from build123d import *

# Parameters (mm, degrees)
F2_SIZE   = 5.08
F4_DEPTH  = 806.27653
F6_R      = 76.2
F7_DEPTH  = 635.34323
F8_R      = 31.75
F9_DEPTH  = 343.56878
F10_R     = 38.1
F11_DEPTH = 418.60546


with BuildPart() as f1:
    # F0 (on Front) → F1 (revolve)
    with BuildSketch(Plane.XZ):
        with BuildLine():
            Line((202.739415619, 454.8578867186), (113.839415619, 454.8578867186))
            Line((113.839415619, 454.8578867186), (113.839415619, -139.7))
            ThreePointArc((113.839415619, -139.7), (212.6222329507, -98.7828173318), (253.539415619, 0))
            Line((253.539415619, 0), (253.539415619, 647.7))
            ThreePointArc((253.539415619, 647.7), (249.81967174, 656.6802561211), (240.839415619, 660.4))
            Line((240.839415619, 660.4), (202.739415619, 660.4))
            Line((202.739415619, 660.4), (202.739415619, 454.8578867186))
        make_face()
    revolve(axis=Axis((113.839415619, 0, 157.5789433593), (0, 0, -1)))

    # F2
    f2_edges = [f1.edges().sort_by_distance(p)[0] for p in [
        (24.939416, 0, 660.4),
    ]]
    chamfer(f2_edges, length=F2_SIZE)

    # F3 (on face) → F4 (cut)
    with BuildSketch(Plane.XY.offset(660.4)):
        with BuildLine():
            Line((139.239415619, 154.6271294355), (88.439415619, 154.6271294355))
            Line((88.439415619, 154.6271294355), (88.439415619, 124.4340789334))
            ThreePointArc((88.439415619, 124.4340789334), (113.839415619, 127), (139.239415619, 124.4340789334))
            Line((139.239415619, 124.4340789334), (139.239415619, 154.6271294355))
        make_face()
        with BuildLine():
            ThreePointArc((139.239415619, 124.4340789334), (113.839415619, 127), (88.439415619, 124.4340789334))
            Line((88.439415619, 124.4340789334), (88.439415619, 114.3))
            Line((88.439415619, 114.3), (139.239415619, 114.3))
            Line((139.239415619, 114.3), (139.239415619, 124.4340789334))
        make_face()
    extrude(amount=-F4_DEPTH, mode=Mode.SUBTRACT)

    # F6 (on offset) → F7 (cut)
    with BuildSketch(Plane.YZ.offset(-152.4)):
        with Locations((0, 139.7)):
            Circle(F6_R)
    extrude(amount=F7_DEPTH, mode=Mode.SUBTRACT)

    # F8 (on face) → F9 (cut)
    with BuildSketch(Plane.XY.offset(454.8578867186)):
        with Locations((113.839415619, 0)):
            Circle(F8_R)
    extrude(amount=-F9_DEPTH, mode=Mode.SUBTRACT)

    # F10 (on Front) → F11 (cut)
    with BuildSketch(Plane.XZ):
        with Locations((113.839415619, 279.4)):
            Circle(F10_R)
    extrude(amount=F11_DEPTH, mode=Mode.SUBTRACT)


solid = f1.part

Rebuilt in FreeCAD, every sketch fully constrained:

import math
import FreeCAD as App
import Part
import Sketcher

V = App.Vector
Q = App.Units.Quantity


def edges_at(feature, points):
    """Names of the edges that pass closest to the given points."""
    edges = feature.Shape.Edges
    near = lambda p: min(range(len(edges)), key=lambda i: edges[i].distToShape(Part.Vertex(*p))[0])
    return sorted({f"Edge{near(p) + 1}" for p in points})

doc = App.newDocument("Part")
params = doc.addObject("Spreadsheet::Sheet", "Params")
for row, (alias, value) in enumerate([
    ("sketch1_radius", "5.5 in"),
    ("sketch1_radius2", "0.5 in"),
    ("sketch1_width", "3.5 in"),
    ("sketch1_height", "25.5 in"),
    ("revolution_angle", "360 deg"),
    ("chamfer_size", "0.2 in"),
    ("sketch2_width", "2 in"),
    ("pocket1_length", "806.27653 mm"),
    ("sketch3_diameter", "6 in"),
    ("pocket2_length", "635.34323 mm"),
    ("sketch4_diameter", "2.5 in"),
    ("pocket3_length", "343.56878 mm"),
    ("sketch5_diameter", "3 in"),
    ("pocket4_length", "418.60546 mm"),
], start=1):
    params.set(f"A{row}", alias)
    params.set(f"B{row}", "=" + value)
    params.setAlias(f"B{row}", alias)

body = doc.addObject("PartDesign::Body", "Body")

# Sketch on XZ plane
sketch1 = body.newObject("Sketcher::SketchObject", "Sketch")
sketch1.AttachmentSupport = (doc.getObject("XZ_Plane"), [""])
sketch1.MapMode = "FlatFace"
sketch1.addGeometry([
    Part.LineSegment(V(203, 455, 0), V(114, 455, 0)),  # 0
    Part.LineSegment(V(114, 455, 0), V(114, -140, 0)),  # 1
    Part.ArcOfCircle(Part.Circle(V(114, 0, 0), V(0, 0, 1), 140), math.radians(-90), math.radians(0)),  # 2
    Part.LineSegment(V(254, 0, 0), V(254, 648, 0)),  # 3
    Part.ArcOfCircle(Part.Circle(V(241, 648, 0), V(0, 0, 1), 13), math.radians(0), math.radians(90)),  # 4
    Part.LineSegment(V(241, 660, 0), V(203, 660, 0)),  # 5
    Part.LineSegment(V(203, 660, 0), V(203, 455, 0)),  # 6
], False)
sketch1.addGeometry(Part.LineSegment(V(114, 660, 0), V(114, -140, 0)), True)  # axis
sketch1.addConstraint([
    Sketcher.Constraint("Coincident", 0, 2, 1, 1),
    Sketcher.Constraint("Coincident", 1, 2, 2, 1),
    Sketcher.Constraint("Tangent", 2, 2, 3, 1),
    Sketcher.Constraint("Tangent", 3, 2, 4, 1),
    Sketcher.Constraint("Tangent", 4, 2, 5, 1),
    Sketcher.Constraint("Coincident", 5, 2, 6, 1),
    Sketcher.Constraint("Coincident", 6, 2, 0, 1),
    Sketcher.Constraint("Horizontal", 0),
    Sketcher.Constraint("Vertical", 1),
    Sketcher.Constraint("Vertical", 3),
    Sketcher.Constraint("Horizontal", 5),
    Sketcher.Constraint("Vertical", 6),
    Sketcher.Constraint("Vertical", 7),
    Sketcher.Constraint("Coincident", 7, 2, 1, 2),
    Sketcher.Constraint("PointOnObject", 2, 3, -1),
    Sketcher.Constraint("Horizontal", 5, 2, 7, 1),
    Sketcher.Constraint("Vertical", 2, 3, 0, 2),
    Sketcher.Constraint("Radius", 2, Q("5.5 in")),
    Sketcher.Constraint("Radius", 4, Q("0.5 in")),
    Sketcher.Constraint("DistanceX", 0, 2, 0, 1, Q("3.5 in")),
    Sketcher.Constraint("DistanceY", 3, 1, 3, 2, Q("25.5 in")),
    Sketcher.Constraint("DistanceY", 1, 2, 1, 1, 594.557887),
    Sketcher.Constraint("DistanceX", -1, 1, 2, 3, 113.839416),
])
sketch1.setExpression("Constraints[17]", "Params.sketch1_radius")
sketch1.setExpression("Constraints[18]", "Params.sketch1_radius2")
sketch1.setExpression("Constraints[19]", "Params.sketch1_width")
sketch1.setExpression("Constraints[20]", "Params.sketch1_height")
revolution = body.newObject("PartDesign::Revolution", "Revolution")
revolution.Profile = sketch1
revolution.ReferenceAxis = (sketch1, ["Axis0"])
revolution.setExpression("Angle", "Params.revolution_angle")
doc.recompute()

chamfer = body.newObject("PartDesign::Chamfer", "Chamfer")
chamfer.Base = (revolution, edges_at(revolution, [(24.939, 0, 660.4)]))
chamfer.setExpression("Size", "Params.chamfer_size")

# Sketch on XY plane
sketch2 = body.newObject("Sketcher::SketchObject", "Sketch001")
sketch2.AttachmentSupport = (doc.getObject("XY_Plane"), [""])
sketch2.MapMode = "FlatFace"
sketch2.AttachmentOffset = App.Placement(V(0, 0, 26 * 25.4), App.Rotation())
sketch2.addGeometry([
    Part.LineSegment(V(139, 155, 0), V(88, 155, 0)),
    Part.LineSegment(V(88, 155, 0), V(88, 114, 0)),
    Part.LineSegment(V(88, 114, 0), V(139, 114, 0)),
    Part.LineSegment(V(139, 114, 0), V(139, 155, 0)),
], False)
sketch2.addConstraint([
    Sketcher.Constraint("Coincident", 0, 2, 1, 1),
    Sketcher.Constraint("Coincident", 1, 2, 2, 1),
    Sketcher.Constraint("Coincident", 2, 2, 3, 1),
    Sketcher.Constraint("Coincident", 3, 2, 0, 1),
    Sketcher.Constraint("Horizontal", 0),
    Sketcher.Constraint("Vertical", 1),
    Sketcher.Constraint("Horizontal", 2),
    Sketcher.Constraint("Vertical", 3),
    Sketcher.Constraint("DistanceX", 0, 2, 0, 1, Q("2 in")),
    Sketcher.Constraint("DistanceY", -1, 1, 1, 2, Q("4.5 in")),
    Sketcher.Constraint("DistanceY", 1, 2, 1, 1, 40.327129),
    Sketcher.Constraint("DistanceX", -1, 1, 0, 2, 88.439416),
])
sketch2.setExpression("Constraints[8]", "Params.sketch2_width")
pocket1 = body.newObject("PartDesign::Pocket", "Pocket")
pocket1.Profile = sketch2
pocket1.setExpression("Length", "Params.pocket1_length")

# Sketch on YZ plane
sketch3 = body.newObject("Sketcher::SketchObject", "Sketch002")
sketch3.AttachmentSupport = (doc.getObject("YZ_Plane"), [""])
sketch3.MapMode = "FlatFace"
sketch3.AttachmentOffset = App.Placement(V(0, 0, -6 * 25.4), App.Rotation())
sketch3.addGeometry(Part.Circle(V(0, 140, 0), V(0, 0, 1), 76), False)
sketch3.addConstraint([
    Sketcher.Constraint("PointOnObject", 0, 3, -2),
    Sketcher.Constraint("Diameter", 0, Q("6 in")),
    Sketcher.Constraint("DistanceY", -1, 1, 0, 3, Q("5.5 in")),
])
sketch3.setExpression("Constraints[1]", "Params.sketch3_diameter")
pocket2 = body.newObject("PartDesign::Pocket", "Pocket001")
pocket2.Profile = sketch3
pocket2.setExpression("Length", "Params.pocket2_length")
pocket2.Reversed = True

# Sketch on XY plane
sketch4 = body.newObject("Sketcher::SketchObject", "Sketch003")
sketch4.AttachmentSupport = (doc.getObject("XY_Plane"), [""])
sketch4.MapMode = "FlatFace"
sketch4.AttachmentOffset = App.Placement(V(0, 0, 454.857887), App.Rotation())
sketch4.addGeometry(Part.Circle(V(114, 0, 0), V(0, 0, 1), 32), False)
sketch4.addConstraint([
    Sketcher.Constraint("PointOnObject", 0, 3, -1),
    Sketcher.Constraint("Diameter", 0, Q("2.5 in")),
    Sketcher.Constraint("DistanceX", -1, 1, 0, 3, 113.839416),
])
sketch4.setExpression("Constraints[1]", "Params.sketch4_diameter")
pocket3 = body.newObject("PartDesign::Pocket", "Pocket002")
pocket3.Profile = sketch4
pocket3.setExpression("Length", "Params.pocket3_length")

# Sketch on XZ plane
sketch5 = body.newObject("Sketcher::SketchObject", "Sketch004")
sketch5.AttachmentSupport = (doc.getObject("XZ_Plane"), [""])
sketch5.MapMode = "FlatFace"
sketch5.addGeometry(Part.Circle(V(114, 279, 0), V(0, 0, 1), 38), False)
sketch5.addConstraint([
    Sketcher.Constraint("Diameter", 0, Q("3 in")),
    Sketcher.Constraint("DistanceY", -1, 1, 0, 3, Q("11 in")),
    Sketcher.Constraint("DistanceX", -1, 1, 0, 3, 113.839416),
])
sketch5.setExpression("Constraints[0]", "Params.sketch5_diameter")
pocket4 = body.newObject("PartDesign::Pocket", "Pocket003")
pocket4.Profile = sketch5
pocket4.setExpression("Length", "Params.pocket4_length")
pocket4.Reversed = True

doc.recompute()
